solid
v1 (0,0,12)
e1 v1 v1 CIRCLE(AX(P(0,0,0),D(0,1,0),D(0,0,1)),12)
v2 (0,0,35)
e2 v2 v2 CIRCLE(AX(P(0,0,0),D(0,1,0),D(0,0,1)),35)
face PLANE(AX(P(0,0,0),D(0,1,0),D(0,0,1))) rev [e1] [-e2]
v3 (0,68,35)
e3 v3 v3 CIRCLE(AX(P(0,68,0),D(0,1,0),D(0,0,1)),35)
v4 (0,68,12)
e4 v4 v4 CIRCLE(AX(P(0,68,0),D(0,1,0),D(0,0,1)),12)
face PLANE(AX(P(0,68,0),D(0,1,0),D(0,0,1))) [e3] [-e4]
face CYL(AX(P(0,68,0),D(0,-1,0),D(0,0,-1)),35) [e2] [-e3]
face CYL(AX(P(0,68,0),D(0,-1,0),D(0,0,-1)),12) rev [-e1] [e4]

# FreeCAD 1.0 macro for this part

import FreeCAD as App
import Part
import Sketcher
Q = App.Units.Quantity

doc = App.newDocument("Part")
body = doc.addObject("PartDesign::Body", "Body")

sketch1 = doc.addObject("Sketcher::SketchObject", "Sketch")
body.addObject(sketch1)
sketch1.AttachmentSupport = (doc.XZ_Plane, [""])
sketch1.MapMode = "FlatFace"
sketch1.addGeometry(Part.Circle(App.Vector(0, 0, 0), App.Vector(0, 0, 1), 35), False)
sketch1.addGeometry(Part.Circle(App.Vector(0, 0, 0), App.Vector(0, 0, 1), 12), False)
sketch1.addConstraint(Sketcher.Constraint("Coincident", 0, 3, -1, 1))
sketch1.addConstraint(Sketcher.Constraint("Coincident", 1, 3, -1, 1))
sketch1.addConstraint(Sketcher.Constraint("Diameter", 0, Q("70 mm")))
sketch1.addConstraint(Sketcher.Constraint("Diameter", 1, Q("24 mm")))
pad1 = doc.addObject("PartDesign::Pad", "Pad")
body.addObject(pad1)
pad1.Profile = sketch1
pad1.Length = 68
pad1.Reversed = True

doc.recompute()
